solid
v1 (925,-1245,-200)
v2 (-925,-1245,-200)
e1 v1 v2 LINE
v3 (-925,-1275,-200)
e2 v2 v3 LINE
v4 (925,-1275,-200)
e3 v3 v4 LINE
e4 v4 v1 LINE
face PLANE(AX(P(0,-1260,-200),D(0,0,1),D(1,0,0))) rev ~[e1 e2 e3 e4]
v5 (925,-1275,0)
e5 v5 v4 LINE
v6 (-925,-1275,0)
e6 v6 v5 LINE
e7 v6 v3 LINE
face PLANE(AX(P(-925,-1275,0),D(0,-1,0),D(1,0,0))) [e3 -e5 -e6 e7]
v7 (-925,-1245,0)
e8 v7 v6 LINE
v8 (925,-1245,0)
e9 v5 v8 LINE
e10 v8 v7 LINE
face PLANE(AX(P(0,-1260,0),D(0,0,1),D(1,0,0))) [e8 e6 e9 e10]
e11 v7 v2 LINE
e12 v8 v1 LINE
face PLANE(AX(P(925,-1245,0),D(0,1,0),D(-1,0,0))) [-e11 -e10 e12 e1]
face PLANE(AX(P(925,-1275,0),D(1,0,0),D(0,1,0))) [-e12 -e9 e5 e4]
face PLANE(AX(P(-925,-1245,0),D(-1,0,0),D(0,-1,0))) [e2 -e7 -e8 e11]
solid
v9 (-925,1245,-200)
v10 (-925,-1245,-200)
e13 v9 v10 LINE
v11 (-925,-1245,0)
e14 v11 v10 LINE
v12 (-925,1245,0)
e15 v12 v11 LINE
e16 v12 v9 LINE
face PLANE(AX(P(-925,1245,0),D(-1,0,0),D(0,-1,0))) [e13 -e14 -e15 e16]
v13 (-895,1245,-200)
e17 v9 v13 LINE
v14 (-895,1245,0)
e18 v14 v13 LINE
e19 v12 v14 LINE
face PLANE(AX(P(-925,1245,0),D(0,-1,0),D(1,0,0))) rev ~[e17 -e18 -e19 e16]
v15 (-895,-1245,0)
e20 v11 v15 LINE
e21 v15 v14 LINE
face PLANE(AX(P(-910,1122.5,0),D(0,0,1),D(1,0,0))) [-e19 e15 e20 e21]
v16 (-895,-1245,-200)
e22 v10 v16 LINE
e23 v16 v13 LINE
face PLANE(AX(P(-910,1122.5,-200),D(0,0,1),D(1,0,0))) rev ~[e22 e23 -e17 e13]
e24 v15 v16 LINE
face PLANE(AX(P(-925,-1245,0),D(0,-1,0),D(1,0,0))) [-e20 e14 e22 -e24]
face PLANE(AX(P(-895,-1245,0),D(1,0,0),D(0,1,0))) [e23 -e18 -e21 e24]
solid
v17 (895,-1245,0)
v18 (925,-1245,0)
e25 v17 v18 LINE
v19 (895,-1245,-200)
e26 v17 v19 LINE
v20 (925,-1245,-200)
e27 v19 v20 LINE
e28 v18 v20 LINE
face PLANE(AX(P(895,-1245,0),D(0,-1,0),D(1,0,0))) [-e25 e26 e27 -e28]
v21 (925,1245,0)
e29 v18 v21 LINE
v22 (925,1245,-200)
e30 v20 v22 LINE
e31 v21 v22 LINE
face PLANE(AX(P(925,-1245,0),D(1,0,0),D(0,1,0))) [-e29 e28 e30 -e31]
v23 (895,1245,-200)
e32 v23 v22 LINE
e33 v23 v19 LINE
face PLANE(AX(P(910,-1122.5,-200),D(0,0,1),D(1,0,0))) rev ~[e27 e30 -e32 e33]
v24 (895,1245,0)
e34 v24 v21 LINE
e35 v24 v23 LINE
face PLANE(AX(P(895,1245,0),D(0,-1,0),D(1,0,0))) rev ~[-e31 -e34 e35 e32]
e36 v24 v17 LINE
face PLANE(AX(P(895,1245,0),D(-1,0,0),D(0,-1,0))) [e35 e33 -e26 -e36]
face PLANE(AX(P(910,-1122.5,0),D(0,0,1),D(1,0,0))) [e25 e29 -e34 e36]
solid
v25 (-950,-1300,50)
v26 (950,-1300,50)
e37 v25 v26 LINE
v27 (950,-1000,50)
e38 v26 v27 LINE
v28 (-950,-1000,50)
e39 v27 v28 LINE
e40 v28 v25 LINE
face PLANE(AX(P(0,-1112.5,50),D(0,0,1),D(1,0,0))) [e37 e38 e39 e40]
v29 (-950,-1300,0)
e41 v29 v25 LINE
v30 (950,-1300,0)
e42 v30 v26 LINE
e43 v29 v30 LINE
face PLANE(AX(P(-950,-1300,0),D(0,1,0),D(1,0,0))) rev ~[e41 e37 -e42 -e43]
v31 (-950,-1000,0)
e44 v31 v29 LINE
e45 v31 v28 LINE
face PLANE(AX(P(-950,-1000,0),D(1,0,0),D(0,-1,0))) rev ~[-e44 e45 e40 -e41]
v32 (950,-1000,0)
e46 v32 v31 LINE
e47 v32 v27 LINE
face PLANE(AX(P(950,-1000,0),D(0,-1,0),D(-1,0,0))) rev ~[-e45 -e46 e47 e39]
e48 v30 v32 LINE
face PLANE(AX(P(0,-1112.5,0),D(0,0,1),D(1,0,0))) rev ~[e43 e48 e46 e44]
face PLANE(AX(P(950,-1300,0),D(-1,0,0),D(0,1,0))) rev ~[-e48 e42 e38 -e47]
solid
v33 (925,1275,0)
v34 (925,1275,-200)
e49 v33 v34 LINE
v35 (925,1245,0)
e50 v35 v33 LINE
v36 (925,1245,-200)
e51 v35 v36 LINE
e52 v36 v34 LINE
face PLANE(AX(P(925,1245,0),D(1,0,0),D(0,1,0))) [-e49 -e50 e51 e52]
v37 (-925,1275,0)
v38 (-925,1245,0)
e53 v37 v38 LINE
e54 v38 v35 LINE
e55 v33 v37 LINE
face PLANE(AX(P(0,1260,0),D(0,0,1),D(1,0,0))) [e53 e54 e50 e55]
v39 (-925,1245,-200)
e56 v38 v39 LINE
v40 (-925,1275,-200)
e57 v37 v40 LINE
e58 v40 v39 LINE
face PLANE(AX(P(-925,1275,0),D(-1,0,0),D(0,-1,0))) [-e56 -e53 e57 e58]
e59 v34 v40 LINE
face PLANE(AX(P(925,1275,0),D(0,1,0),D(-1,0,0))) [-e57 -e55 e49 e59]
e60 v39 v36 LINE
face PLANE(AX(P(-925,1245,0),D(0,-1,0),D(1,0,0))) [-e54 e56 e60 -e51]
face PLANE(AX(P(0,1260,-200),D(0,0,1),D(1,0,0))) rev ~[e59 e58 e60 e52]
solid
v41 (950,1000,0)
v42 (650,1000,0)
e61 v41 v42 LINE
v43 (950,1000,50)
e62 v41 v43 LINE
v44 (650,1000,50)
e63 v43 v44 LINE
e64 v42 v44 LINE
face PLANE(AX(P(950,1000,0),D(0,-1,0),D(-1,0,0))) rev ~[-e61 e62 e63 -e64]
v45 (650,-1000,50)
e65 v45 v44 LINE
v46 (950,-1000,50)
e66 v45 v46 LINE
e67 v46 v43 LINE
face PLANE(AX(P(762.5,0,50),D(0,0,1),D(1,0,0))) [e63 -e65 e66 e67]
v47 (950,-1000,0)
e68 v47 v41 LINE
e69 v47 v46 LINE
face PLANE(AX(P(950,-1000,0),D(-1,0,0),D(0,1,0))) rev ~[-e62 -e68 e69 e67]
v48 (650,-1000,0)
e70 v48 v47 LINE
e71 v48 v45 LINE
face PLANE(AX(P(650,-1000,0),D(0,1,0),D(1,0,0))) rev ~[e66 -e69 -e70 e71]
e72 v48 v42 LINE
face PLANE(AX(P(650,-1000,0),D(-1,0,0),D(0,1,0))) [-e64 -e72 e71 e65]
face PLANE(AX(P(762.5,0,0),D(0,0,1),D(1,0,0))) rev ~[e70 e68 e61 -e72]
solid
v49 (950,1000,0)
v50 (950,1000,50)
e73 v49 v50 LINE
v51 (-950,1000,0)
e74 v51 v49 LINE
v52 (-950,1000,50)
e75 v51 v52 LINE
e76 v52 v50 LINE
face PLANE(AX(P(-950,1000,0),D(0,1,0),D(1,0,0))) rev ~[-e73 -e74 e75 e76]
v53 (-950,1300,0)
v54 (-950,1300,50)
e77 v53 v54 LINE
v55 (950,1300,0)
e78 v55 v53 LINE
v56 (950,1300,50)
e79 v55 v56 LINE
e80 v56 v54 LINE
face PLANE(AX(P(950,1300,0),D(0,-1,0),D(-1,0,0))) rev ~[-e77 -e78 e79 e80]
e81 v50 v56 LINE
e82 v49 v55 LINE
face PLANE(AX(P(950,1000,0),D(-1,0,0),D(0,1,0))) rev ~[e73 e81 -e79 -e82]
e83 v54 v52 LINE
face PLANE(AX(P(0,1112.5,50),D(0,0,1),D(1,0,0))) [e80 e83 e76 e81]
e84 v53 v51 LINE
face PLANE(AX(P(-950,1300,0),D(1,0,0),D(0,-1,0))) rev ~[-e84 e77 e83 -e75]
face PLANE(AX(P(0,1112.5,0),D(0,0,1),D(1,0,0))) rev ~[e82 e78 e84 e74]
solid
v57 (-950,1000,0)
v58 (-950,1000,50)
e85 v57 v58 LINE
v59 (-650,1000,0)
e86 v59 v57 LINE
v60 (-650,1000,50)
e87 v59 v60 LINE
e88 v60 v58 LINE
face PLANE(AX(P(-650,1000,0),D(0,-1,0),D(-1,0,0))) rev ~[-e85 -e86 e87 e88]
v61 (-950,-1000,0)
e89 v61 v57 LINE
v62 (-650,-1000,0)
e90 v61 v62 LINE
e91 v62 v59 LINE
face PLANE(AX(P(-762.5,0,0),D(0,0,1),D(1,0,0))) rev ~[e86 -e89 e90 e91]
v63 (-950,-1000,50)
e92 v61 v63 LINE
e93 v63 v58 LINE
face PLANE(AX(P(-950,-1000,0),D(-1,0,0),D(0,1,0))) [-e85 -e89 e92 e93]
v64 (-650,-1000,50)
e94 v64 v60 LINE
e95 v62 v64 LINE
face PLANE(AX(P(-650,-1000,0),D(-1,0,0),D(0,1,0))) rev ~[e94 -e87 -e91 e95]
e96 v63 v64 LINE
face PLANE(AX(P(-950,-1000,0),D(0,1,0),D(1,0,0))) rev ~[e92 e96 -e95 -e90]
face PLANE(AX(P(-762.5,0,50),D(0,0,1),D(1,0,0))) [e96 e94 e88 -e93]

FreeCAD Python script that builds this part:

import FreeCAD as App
import Part
import Sketcher
from FreeCAD import Vector


def add_polygon(sketch, points):
    """Adds a closed chain of lines whose ends are joined by coincident constraints."""
    first, n = sketch.GeometryCount, len(points)
    for a, b in zip(points, points[1:] + points[:1]):
        sketch.addGeometry(Part.LineSegment(App.Vector(*a, 0), App.Vector(*b, 0)), False)
    for i in range(n):
        sketch.addConstraint(Sketcher.Constraint("Coincident", first + i, 2, first + (i + 1) % n, 1))

doc = App.newDocument("Part")
params = doc.addObject("Spreadsheet::Sheet", "Params")
for row, (alias, value) in enumerate([
    ("sketch1_width", "300 mm"),
    ("sketch1_height", "2000 mm"),
    ("pad1_length", "50 mm"),
    ("sketch2_width", "300 mm"),
    ("sketch2_height", "2000 mm"),
    ("pad2_length", "50 mm"),
    ("sketch3_width", "1900 mm"),
    ("sketch3_height", "300 mm"),
    ("pad3_length", "50 mm"),
    ("sketch4_width", "1900 mm"),
    ("sketch4_height", "300 mm"),
    ("pad4_length", "50 mm"),
    ("sketch5_width", "30 mm"),
    ("sketch5_height", "2490 mm"),
    ("pad5_length", "200 mm"),
    ("sketch6_width", "30 mm"),
    ("sketch6_height", "2490 mm"),
    ("pad6_length", "200 mm"),
    ("sketch7_width", "1850 mm"),
    ("sketch7_height", "30 mm"),
    ("pad7_length", "200 mm"),
    ("sketch8_width", "1850 mm"),
    ("sketch8_height", "30 mm"),
    ("pad8_length", "200 mm"),
], start=1):
    params.set(f"A{row}", alias)
    params.set(f"B{row}", "=" + value)
    params.setAlias(f"B{row}", alias)

body = doc.addObject("PartDesign::Body", "Body")

# Sketch on XY plane
sketch1 = body.newObject("Sketcher::SketchObject", "Sketch")
sketch1.AttachmentSupport = (doc.getObject("XY_Plane"), [""])
sketch1.MapMode = "FlatFace"
add_polygon(sketch1, [(-650, -1000), (-650, 1000), (-950, 1000), (-950, -1000)])  # lines 0-3
sketch1.addConstraint(Sketcher.Constraint("Vertical", 0))
sketch1.addConstraint(Sketcher.Constraint("Horizontal", 1))
sketch1.addConstraint(Sketcher.Constraint("Vertical", 2))
sketch1.addConstraint(Sketcher.Constraint("Horizontal", 3))
sketch1.addConstraint(Sketcher.Constraint("DistanceX", 1, 2, 1, 1, 300.0))
sketch1.addConstraint(Sketcher.Constraint("DistanceY", 0, 1, 0, 2, 2000.0))
sketch1.addConstraint(Sketcher.Constraint("DistanceX", 0, 2, -1, 1, 650.0))
sketch1.addConstraint(Sketcher.Constraint("DistanceY", -1, 1, 0, 2, 1000.0))
sketch1.setExpression("Constraints[8]", "Params.sketch1_width")
sketch1.setExpression("Constraints[9]", "Params.sketch1_height")
pad1 = body.newObject("PartDesign::Pad", "Pad")
pad1.Profile = sketch1
pad1.setExpression("Length", "Params.pad1_length")
body2 = doc.addObject("PartDesign::Body", "Body001")

# Sketch on XY plane
sketch2 = body2.newObject("Sketcher::SketchObject", "Sketch001")
sketch2.AttachmentSupport = (doc.getObject("XY_Plane001"), [""])
sketch2.MapMode = "FlatFace"
add_polygon(sketch2, [(650, 1000), (650, -1000), (950, -1000), (950, 1000)])  # lines 0-3
sketch2.addConstraint(Sketcher.Constraint("Vertical", 0))
sketch2.addConstraint(Sketcher.Constraint("Horizontal", 1))
sketch2.addConstraint(Sketcher.Constraint("Vertical", 2))
sketch2.addConstraint(Sketcher.Constraint("Horizontal", 3))
sketch2.addConstraint(Sketcher.Constraint("DistanceX", 1, 1, 1, 2, 300.0))
sketch2.addConstraint(Sketcher.Constraint("DistanceY", 0, 2, 0, 1, 2000.0))
sketch2.addConstraint(Sketcher.Constraint("DistanceX", -1, 1, 0, 2, 650.0))
sketch2.addConstraint(Sketcher.Constraint("DistanceY", 0, 2, -1, 1, 1000.0))
sketch2.setExpression("Constraints[8]", "Params.sketch2_width")
sketch2.setExpression("Constraints[9]", "Params.sketch2_height")
pad2 = body2.newObject("PartDesign::Pad", "Pad001")
pad2.Profile = sketch2
pad2.setExpression("Length", "Params.pad2_length")
body3 = doc.addObject("PartDesign::Body", "Body002")

# Sketch on XY plane
sketch3 = body3.newObject("Sketcher::SketchObject", "Sketch002")
sketch3.AttachmentSupport = (doc.getObject("XY_Plane002"), [""])
sketch3.MapMode = "FlatFace"
add_polygon(sketch3, [(950, 1000), (950, 1300), (-950, 1300), (-950, 1000)])  # lines 0-3
sketch3.addConstraint(Sketcher.Constraint("Vertical", 0))
sketch3.addConstraint(Sketcher.Constraint("Horizontal", 1))
sketch3.addConstraint(Sketcher.Constraint("Vertical", 2))
sketch3.addConstraint(Sketcher.Constraint("Horizontal", 3))
sketch3.addConstraint(Sketcher.Constraint("DistanceX", 1, 2, 1, 1, 1900.0))
sketch3.addConstraint(Sketcher.Constraint("DistanceY", 0, 1, 0, 2, 300.0))
sketch3.addConstraint(Sketcher.Constraint("DistanceX", -1, 1, 0, 2, 950.0))
sketch3.addConstraint(Sketcher.Constraint("DistanceY", -1, 1, 0, 2, 1300.0))
sketch3.setExpression("Constraints[8]", "Params.sketch3_width")
sketch3.setExpression("Constraints[9]", "Params.sketch3_height")
pad3 = body3.newObject("PartDesign::Pad", "Pad002")
pad3.Profile = sketch3
pad3.setExpression("Length", "Params.pad3_length")
body4 = doc.addObject("PartDesign::Body", "Body003")

# Sketch on XY plane
sketch4 = body4.newObject("Sketcher::SketchObject", "Sketch003")
sketch4.AttachmentSupport = (doc.getObject("XY_Plane003"), [""])
sketch4.MapMode = "FlatFace"
add_polygon(sketch4, [(-950, -1000), (-950, -1300), (950, -1300), (950, -1000)])  # lines 0-3
sketch4.addConstraint(Sketcher.Constraint("Vertical", 0))
sketch4.addConstraint(Sketcher.Constraint("Horizontal", 1))
sketch4.addConstraint(Sketcher.Constraint("Vertical", 2))
sketch4.addConstraint(Sketcher.Constraint("Horizontal", 3))
sketch4.addConstraint(Sketcher.Constraint("DistanceX", 1, 1, 1, 2, 1900.0))
sketch4.addConstraint(Sketcher.Constraint("DistanceY", 0, 2, 0, 1, 300.0))
sketch4.addConstraint(Sketcher.Constraint("DistanceX", 0, 2, -1, 1, 950.0))
sketch4.addConstraint(Sketcher.Constraint("DistanceY", 0, 2, -1, 1, 1300.0))
sketch4.setExpression("Constraints[8]", "Params.sketch4_width")
sketch4.setExpression("Constraints[9]", "Params.sketch4_height")
pad4 = body4.newObject("PartDesign::Pad", "Pad003")
pad4.Profile = sketch4
pad4.setExpression("Length", "Params.pad4_length")
body5 = doc.addObject("PartDesign::Body", "Body004")

# Sketch on XY plane
sketch5 = body5.newObject("Sketcher::SketchObject", "Sketch004")
sketch5.AttachmentSupport = (doc.getObject("XY_Plane004"), [""])
sketch5.MapMode = "FlatFace"
add_polygon(sketch5, [(-925, 1245), (-925, -1245), (-895, -1245), (-895, 1245)])  # lines 0-3
sketch5.addConstraint(Sketcher.Constraint("Vertical", 0))
sketch5.addConstraint(Sketcher.Constraint("Horizontal", 1))
sketch5.addConstraint(Sketcher.Constraint("Vertical", 2))
sketch5.addConstraint(Sketcher.Constraint("Horizontal", 3))
sketch5.addConstraint(Sketcher.Constraint("DistanceX", 1, 1, 1, 2, 30.0))
sketch5.addConstraint(Sketcher.Constraint("DistanceY", 0, 2, 0, 1, 2490.0))
sketch5.addConstraint(Sketcher.Constraint("DistanceX", 0, 2, -1, 1, 925.0))
sketch5.addConstraint(Sketcher.Constraint("DistanceY", 0, 2, -1, 1, 1245.0))
sketch5.setExpression("Constraints[8]", "Params.sketch5_width")
sketch5.setExpression("Constraints[9]", "Params.sketch5_height")
pad5 = body5.newObject("PartDesign::Pad", "Pad004")
pad5.Profile = sketch5
pad5.setExpression("Length", "Params.pad5_length")
pad5.Reversed = True
body6 = doc.addObject("PartDesign::Body", "Body005")

# Sketch on XY plane
sketch6 = body6.newObject("Sketcher::SketchObject", "Sketch005")
sketch6.AttachmentSupport = (doc.getObject("XY_Plane005"), [""])
sketch6.MapMode = "FlatFace"
add_polygon(sketch6, [(895, -1245), (925, -1245), (925, 1245), (895, 1245)])  # lines 0-3
sketch6.addConstraint(Sketcher.Constraint("Horizontal", 0))
sketch6.addConstraint(Sketcher.Constraint("Vertical", 1))
sketch6.addConstraint(Sketcher.Constraint("Horizontal", 2))
sketch6.addConstraint(Sketcher.Constraint("Vertical", 3))
sketch6.addConstraint(Sketcher.Constraint("DistanceX", 0, 1, 0, 2, 30.0))
sketch6.addConstraint(Sketcher.Constraint("DistanceY", 1, 1, 1, 2, 2490.0))
sketch6.addConstraint(Sketcher.Constraint("DistanceX", -1, 1, 0, 2, 925.0))
sketch6.addConstraint(Sketcher.Constraint("DistanceY", 0, 2, -1, 1, 1245.0))
sketch6.setExpression("Constraints[8]", "Params.sketch6_width")
sketch6.setExpression("Constraints[9]", "Params.sketch6_height")
pad6 = body6.newObject("PartDesign::Pad", "Pad005")
pad6.Profile = sketch6
pad6.setExpression("Length", "Params.pad6_length")
pad6.Reversed = True
body7 = doc.addObject("PartDesign::Body", "Body006")

# Sketch on XY plane
sketch7 = body7.newObject("Sketcher::SketchObject", "Sketch006")
sketch7.AttachmentSupport = (doc.getObject("XY_Plane006"), [""])
sketch7.MapMode = "FlatFace"
add_polygon(sketch7, [(-925, 1275), (-925, 1245), (925, 1245), (925, 1275)])  # lines 0-3
sketch7.addConstraint(Sketcher.Constraint("Vertical", 0))
sketch7.addConstraint(Sketcher.Constraint("Horizontal", 1))
sketch7.addConstraint(Sketcher.Constraint("Vertical", 2))
sketch7.addConstraint(Sketcher.Constraint("Horizontal", 3))
sketch7.addConstraint(Sketcher.Constraint("DistanceX", 1, 1, 1, 2, 1850.0))
sketch7.addConstraint(Sketcher.Constraint("DistanceY", 0, 2, 0, 1, 30.0))
sketch7.addConstraint(Sketcher.Constraint("DistanceX", 0, 2, -1, 1, 925.0))
sketch7.addConstraint(Sketcher.Constraint("DistanceY", -1, 1, 0, 2, 1245.0))
sketch7.setExpression("Constraints[8]", "Params.sketch7_width")
sketch7.setExpression("Constraints[9]", "Params.sketch7_height")
pad7 = body7.newObject("PartDesign::Pad", "Pad006")
pad7.Profile = sketch7
pad7.setExpression("Length", "Params.pad7_length")
pad7.Reversed = True
body8 = doc.addObject("PartDesign::Body", "Body007")

# Sketch on XY plane
sketch8 = body8.newObject("Sketcher::SketchObject", "Sketch007")
sketch8.AttachmentSupport = (doc.getObject("XY_Plane007"), [""])
sketch8.MapMode = "FlatFace"
add_polygon(sketch8, [(-925, -1245), (-925, -1275), (925, -1275), (925, -1245)])  # lines 0-3
sketch8.addConstraint(Sketcher.Constraint("Vertical", 0))
sketch8.addConstraint(Sketcher.Constraint("Horizontal", 1))
sketch8.addConstraint(Sketcher.Constraint("Vertical", 2))
sketch8.addConstraint(Sketcher.Constraint("Horizontal", 3))
sketch8.addConstraint(Sketcher.Constraint("DistanceX", 1, 1, 1, 2, 1850.0))
sketch8.addConstraint(Sketcher.Constraint("DistanceY", 0, 2, 0, 1, 30.0))
sketch8.addConstraint(Sketcher.Constraint("DistanceX", 0, 2, -1, 1, 925.0))
sketch8.addConstraint(Sketcher.Constraint("DistanceY", 0, 2, -1, 1, 1275.0))
sketch8.setExpression("Constraints[8]", "Params.sketch8_width")
sketch8.setExpression("Constraints[9]", "Params.sketch8_height")
pad8 = body8.newObject("PartDesign::Pad", "Pad007")
pad8.Profile = sketch8
pad8.setExpression("Length", "Params.pad8_length")
pad8.Reversed = True

doc.recompute()
